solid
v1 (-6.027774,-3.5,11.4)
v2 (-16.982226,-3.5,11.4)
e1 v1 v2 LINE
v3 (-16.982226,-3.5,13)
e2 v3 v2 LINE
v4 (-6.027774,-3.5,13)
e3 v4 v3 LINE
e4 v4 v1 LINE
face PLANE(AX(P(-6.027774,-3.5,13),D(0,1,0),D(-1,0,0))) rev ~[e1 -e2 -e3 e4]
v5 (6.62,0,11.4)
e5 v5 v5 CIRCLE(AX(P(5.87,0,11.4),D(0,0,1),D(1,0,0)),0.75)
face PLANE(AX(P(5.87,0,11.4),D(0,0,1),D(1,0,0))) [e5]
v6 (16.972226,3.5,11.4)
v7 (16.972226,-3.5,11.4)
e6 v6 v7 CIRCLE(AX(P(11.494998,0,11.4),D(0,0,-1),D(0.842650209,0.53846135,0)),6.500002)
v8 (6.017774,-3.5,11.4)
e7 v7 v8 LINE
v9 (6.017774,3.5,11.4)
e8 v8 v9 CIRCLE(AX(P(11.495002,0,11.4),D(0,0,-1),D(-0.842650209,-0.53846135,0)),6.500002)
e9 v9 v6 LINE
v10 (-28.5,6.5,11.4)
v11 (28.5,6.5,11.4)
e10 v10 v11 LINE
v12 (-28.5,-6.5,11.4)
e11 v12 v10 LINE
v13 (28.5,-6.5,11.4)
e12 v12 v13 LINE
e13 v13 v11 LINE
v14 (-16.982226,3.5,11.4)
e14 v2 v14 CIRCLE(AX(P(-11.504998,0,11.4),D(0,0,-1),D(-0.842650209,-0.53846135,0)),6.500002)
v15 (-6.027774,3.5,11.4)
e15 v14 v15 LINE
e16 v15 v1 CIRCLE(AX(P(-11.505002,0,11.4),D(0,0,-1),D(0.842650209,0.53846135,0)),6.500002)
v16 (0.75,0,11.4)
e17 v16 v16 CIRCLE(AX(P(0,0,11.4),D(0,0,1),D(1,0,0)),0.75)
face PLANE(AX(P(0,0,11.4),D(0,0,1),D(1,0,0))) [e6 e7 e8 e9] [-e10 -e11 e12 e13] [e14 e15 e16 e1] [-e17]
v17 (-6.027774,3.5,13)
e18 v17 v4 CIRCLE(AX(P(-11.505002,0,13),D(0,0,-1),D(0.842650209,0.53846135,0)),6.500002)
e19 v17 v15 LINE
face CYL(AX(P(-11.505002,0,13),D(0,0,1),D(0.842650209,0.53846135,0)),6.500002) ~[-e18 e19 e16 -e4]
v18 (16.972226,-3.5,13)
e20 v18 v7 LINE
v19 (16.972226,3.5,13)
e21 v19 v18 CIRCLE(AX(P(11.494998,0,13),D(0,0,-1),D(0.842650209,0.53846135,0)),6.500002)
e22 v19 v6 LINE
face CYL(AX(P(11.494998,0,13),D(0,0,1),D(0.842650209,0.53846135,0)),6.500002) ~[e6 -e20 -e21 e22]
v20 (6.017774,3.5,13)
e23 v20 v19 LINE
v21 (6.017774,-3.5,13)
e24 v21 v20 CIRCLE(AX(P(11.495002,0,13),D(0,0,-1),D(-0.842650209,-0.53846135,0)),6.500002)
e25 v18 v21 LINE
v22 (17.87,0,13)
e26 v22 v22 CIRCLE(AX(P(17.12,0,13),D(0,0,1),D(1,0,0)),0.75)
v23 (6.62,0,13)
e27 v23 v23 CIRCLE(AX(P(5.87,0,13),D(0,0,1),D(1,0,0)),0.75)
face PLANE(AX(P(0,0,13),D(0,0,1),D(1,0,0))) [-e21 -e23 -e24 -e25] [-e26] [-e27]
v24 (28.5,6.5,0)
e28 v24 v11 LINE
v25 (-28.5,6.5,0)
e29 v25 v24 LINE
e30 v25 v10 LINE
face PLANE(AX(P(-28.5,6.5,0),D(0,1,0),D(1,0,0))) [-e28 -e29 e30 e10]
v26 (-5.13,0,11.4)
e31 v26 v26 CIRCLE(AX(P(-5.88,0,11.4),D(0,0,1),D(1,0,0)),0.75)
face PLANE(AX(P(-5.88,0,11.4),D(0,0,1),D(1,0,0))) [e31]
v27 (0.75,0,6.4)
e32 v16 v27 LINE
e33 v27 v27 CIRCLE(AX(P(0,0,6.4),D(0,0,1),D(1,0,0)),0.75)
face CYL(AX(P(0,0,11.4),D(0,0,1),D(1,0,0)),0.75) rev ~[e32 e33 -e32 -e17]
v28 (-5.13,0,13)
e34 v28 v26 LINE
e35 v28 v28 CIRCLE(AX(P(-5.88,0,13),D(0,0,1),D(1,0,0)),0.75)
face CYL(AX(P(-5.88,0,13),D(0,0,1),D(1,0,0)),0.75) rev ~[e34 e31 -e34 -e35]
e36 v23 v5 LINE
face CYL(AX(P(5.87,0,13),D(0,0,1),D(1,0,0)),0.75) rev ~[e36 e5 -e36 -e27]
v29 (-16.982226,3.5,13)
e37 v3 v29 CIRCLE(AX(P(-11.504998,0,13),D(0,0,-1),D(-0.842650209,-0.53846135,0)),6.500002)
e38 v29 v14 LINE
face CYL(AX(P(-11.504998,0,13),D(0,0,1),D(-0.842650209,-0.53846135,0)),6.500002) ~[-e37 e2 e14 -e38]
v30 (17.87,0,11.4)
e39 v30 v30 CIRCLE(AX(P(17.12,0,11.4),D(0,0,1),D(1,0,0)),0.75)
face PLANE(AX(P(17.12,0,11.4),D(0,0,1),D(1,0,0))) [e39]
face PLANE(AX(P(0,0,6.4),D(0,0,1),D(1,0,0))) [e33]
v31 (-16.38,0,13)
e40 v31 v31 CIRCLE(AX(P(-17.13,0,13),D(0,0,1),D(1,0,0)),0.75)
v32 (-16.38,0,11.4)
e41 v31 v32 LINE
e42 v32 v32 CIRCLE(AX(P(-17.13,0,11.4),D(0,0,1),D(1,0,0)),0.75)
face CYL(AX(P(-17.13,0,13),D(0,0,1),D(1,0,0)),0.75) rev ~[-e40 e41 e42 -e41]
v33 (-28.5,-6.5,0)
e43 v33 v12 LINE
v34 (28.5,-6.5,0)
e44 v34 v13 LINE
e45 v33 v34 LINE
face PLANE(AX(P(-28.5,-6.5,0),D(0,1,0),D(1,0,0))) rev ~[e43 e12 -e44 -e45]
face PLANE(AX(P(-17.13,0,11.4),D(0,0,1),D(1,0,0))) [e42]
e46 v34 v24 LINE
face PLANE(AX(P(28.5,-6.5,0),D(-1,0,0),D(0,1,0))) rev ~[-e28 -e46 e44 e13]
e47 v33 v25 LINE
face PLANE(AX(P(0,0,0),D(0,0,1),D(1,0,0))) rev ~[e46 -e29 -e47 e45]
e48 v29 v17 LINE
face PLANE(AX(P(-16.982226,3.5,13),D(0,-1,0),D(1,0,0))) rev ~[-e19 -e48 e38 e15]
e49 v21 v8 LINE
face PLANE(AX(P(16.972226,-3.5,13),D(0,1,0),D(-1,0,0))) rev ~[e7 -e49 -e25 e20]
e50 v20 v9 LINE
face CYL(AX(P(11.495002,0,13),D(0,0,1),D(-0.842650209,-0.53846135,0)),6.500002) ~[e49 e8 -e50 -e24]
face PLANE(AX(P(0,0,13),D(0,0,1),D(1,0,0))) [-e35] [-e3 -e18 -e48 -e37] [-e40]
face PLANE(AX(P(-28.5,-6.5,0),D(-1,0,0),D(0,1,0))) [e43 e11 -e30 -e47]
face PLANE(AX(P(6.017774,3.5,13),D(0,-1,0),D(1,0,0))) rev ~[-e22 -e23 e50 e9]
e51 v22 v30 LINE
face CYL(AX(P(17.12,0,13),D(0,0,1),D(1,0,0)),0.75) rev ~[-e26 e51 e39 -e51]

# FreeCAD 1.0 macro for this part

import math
import FreeCAD as App
import Part
import Sketcher
from FreeCAD import Vector


def add_polygon(sketch, points):
    """Adds a closed chain of lines whose ends are joined by coincident constraints."""
    first, n = sketch.GeometryCount, len(points)
    for a, b in zip(points, points[1:] + points[:1]):
        sketch.addGeometry(Part.LineSegment(App.Vector(*a, 0), App.Vector(*b, 0)), False)
    for i in range(n):
        sketch.addConstraint(Sketcher.Constraint("Coincident", first + i, 2, first + (i + 1) % n, 1))

doc = App.newDocument("Part")
body = doc.addObject("PartDesign::Body", "Body")

# Sketch on XY plane
sketch1 = body.newObject("Sketcher::SketchObject", "Sketch")
sketch1.AttachmentSupport = (doc.getObject("XY_Plane"), [""])
sketch1.MapMode = "FlatFace"
add_polygon(sketch1, [(-28, 6), (-28, -6), (28, -6), (28, 6)])  # lines 0-3
sketch1.addConstraint([
    Sketcher.Constraint("Vertical", 0),
    Sketcher.Constraint("Horizontal", 1),
    Sketcher.Constraint("Vertical", 2),
    Sketcher.Constraint("Horizontal", 3),
    Sketcher.Constraint("Symmetric", 0, 2, 2, 2, -1, 1),
    Sketcher.Constraint("DistanceX", 1, 1, 1, 2, 57.0),
    Sketcher.Constraint("DistanceY", 0, 2, 0, 1, 13.0),
])
pad1 = body.newObject("PartDesign::Pad", "Pad")
pad1.Profile = sketch1
pad1.Length = 13

# Sketch on XY plane
sketch2 = body.newObject("Sketcher::SketchObject", "Sketch001")
sketch2.AttachmentSupport = (doc.getObject("XY_Plane"), [""])
sketch2.MapMode = "FlatFace"
sketch2.AttachmentOffset = App.Placement(Vector(0, 0, 13), App.Rotation())
add_polygon(sketch2, [(-28.5, 6.5), (-28.5, -6.5), (28.5, -6.5), (28.5, 6.5)])  # lines 0-3
sketch2.addGeometry(Part.LineSegment(Vector(17, -3.5, 0), Vector(6, -3.5, 0)), False)  # 4
sketch2.addGeometry(Part.ArcOfCircle(Part.Circle(Vector(11.5, 0, 0), Vector(0, 0, 1), 6.5), math.radians(147), math.radians(213)), False)  # 5
sketch2.addGeometry(Part.LineSegment(Vector(6, 3.5, 0), Vector(17, 3.5, 0)), False)  # 6
sketch2.addGeometry(Part.ArcOfCircle(Part.Circle(Vector(11.5, 0, 0), Vector(0, 0, 1), 6.5), math.radians(-33), math.radians(33)), False)  # 7
sketch2.addGeometry(Part.LineSegment(Vector(-17, 3.5, 0), Vector(-6, 3.5, 0)), False)  # 8
sketch2.addGeometry(Part.ArcOfCircle(Part.Circle(Vector(-11.5, 0, 0), Vector(0, 0, 1), 6.5), math.radians(-33), math.radians(33)), False)  # 9
sketch2.addGeometry(Part.LineSegment(Vector(-6, -3.5, 0), Vector(-17, -3.5, 0)), False)  # 10
sketch2.addGeometry(Part.ArcOfCircle(Part.Circle(Vector(-11.5, 0, 0), Vector(0, 0, 1), 6.5), math.radians(147), math.radians(213)), False)  # 11
sketch2.addGeometry(Part.Circle(Vector(-17.1, 0, 0), Vector(0, 0, 1), 0.8), False)  # 12
sketch2.addGeometry(Part.Circle(Vector(-5.9, 0, 0), Vector(0, 0, 1), 0.8), False)  # 13
sketch2.addGeometry(Part.Circle(Vector(5.9, 0, 0), Vector(0, 0, 1), 0.8), False)  # 14
sketch2.addGeometry(Part.Circle(Vector(17.1, 0, 0), Vector(0, 0, 1), 0.8), False)  # 15
sketch2.addConstraint([
    Sketcher.Constraint("Coincident", 4, 2, 5, 2),
    Sketcher.Constraint("Coincident", 5, 1, 6, 1),
    Sketcher.Constraint("Coincident", 6, 2, 7, 2),
    Sketcher.Constraint("Coincident", 7, 1, 4, 1),
    Sketcher.Constraint("Coincident", 8, 2, 9, 2),
    Sketcher.Constraint("Coincident", 9, 1, 10, 1),
    Sketcher.Constraint("Coincident", 10, 2, 11, 2),
    Sketcher.Constraint("Coincident", 11, 1, 8, 1),
    Sketcher.Constraint("Vertical", 0),
    Sketcher.Constraint("Horizontal", 1),
    Sketcher.Constraint("Vertical", 2),
    Sketcher.Constraint("Horizontal", 3),
    Sketcher.Constraint("Horizontal", 4),
    Sketcher.Constraint("Horizontal", 6),
    Sketcher.Constraint("Horizontal", 8),
    Sketcher.Constraint("Horizontal", 10),
    Sketcher.Constraint("Coincident", 7, 3, 5, 3),
    Sketcher.Constraint("Coincident", 11, 3, 9, 3),
    Sketcher.Constraint("Equal", 5, 7),
    Sketcher.Constraint("Equal", 7, 9),
    Sketcher.Constraint("Equal", 9, 11),
    Sketcher.Constraint("Equal", 12, 13),
    Sketcher.Constraint("Equal", 13, 14),
    Sketcher.Constraint("Equal", 14, 15),
    Sketcher.Constraint("Symmetric", 0, 2, 2, 2, -1, 1),
    Sketcher.Constraint("Symmetric", 4, 2, 5, 1, -1),
    Sketcher.Constraint("Symmetric", 8, 2, 9, 1, -1),
    Sketcher.Constraint("PointOnObject", 12, 3, -1),
    Sketcher.Constraint("PointOnObject", 13, 3, -1),
    Sketcher.Constraint("PointOnObject", 14, 3, -1),
    Sketcher.Constraint("PointOnObject", 15, 3, -1),
    Sketcher.Constraint("Horizontal", 6, 2, 8, 2),
    Sketcher.Constraint("Diameter", 12, 1.5),
    Sketcher.Constraint("DistanceX", 1, 1, 1, 2, 57.0),
    Sketcher.Constraint("DistanceY", 0, 2, 0, 1, 13.0),
    Sketcher.Constraint("DistanceX", 9, 3, 7, 3, 23.0),
    Sketcher.Constraint("DistanceX", 13, 3, 15, 3, 23.0),
    Sketcher.Constraint("DistanceY", 4, 2, 5, 1, 7.0),
    Sketcher.Constraint("DistanceX", 12, 3, -1, 1, 17.13),
    Sketcher.Constraint("DistanceX", 13, 3, -1, 1, 5.88),
    Sketcher.Constraint("DistanceX", -1, 1, 14, 3, 5.87),
    Sketcher.Constraint("Radius", 5, 6.500002),
    Sketcher.Constraint("DistanceX", -1, 1, 5, 3, 11.495002),
])
pocket1 = body.newObject("PartDesign::Pocket", "Pocket")
pocket1.Profile = sketch2
pocket1.Length = 1.6
body2 = doc.addObject("PartDesign::Body", "Body001")
doc.recompute()

body.Placement = App.Placement(Vector(0, 13, 0), App.Rotation(Vector(1, 0, 0), 180))
boolean = body2.newObject("PartDesign::Boolean", "Boolean")
boolean.Type = "Fuse"
boolean.addObjects([body])
body3 = doc.addObject("PartDesign::Body", "Body002")
doc.recompute()

body2.Placement = App.Placement(Vector(0, 13, 0), App.Rotation(Vector(1, 0, 0), 180))
boolean2 = body3.newObject("PartDesign::Boolean", "Boolean001")
boolean2.Type = "Fuse"
boolean2.addObjects([body2])

# Sketch on XY plane
sketch3 = body3.newObject("Sketcher::SketchObject", "Sketch002")
sketch3.AttachmentSupport = (doc.getObject("XY_Plane002"), [""])
sketch3.MapMode = "FlatFace"
sketch3.AttachmentOffset = App.Placement(Vector(0, 0, 11.4), App.Rotation())
sketch3.addGeometry(Part.Circle(Vector(0, 0, 0), Vector(0, 0, 1), 0.8), False)
sketch3.addConstraint([
    Sketcher.Constraint("Coincident", 0, 3, -1, 1),
    Sketcher.Constraint("Diameter", 0, 1.5),
])
pocket2 = body3.newObject("PartDesign::Pocket", "Pocket001")
pocket2.Profile = sketch3
pocket2.Length = 5

doc.recompute()
